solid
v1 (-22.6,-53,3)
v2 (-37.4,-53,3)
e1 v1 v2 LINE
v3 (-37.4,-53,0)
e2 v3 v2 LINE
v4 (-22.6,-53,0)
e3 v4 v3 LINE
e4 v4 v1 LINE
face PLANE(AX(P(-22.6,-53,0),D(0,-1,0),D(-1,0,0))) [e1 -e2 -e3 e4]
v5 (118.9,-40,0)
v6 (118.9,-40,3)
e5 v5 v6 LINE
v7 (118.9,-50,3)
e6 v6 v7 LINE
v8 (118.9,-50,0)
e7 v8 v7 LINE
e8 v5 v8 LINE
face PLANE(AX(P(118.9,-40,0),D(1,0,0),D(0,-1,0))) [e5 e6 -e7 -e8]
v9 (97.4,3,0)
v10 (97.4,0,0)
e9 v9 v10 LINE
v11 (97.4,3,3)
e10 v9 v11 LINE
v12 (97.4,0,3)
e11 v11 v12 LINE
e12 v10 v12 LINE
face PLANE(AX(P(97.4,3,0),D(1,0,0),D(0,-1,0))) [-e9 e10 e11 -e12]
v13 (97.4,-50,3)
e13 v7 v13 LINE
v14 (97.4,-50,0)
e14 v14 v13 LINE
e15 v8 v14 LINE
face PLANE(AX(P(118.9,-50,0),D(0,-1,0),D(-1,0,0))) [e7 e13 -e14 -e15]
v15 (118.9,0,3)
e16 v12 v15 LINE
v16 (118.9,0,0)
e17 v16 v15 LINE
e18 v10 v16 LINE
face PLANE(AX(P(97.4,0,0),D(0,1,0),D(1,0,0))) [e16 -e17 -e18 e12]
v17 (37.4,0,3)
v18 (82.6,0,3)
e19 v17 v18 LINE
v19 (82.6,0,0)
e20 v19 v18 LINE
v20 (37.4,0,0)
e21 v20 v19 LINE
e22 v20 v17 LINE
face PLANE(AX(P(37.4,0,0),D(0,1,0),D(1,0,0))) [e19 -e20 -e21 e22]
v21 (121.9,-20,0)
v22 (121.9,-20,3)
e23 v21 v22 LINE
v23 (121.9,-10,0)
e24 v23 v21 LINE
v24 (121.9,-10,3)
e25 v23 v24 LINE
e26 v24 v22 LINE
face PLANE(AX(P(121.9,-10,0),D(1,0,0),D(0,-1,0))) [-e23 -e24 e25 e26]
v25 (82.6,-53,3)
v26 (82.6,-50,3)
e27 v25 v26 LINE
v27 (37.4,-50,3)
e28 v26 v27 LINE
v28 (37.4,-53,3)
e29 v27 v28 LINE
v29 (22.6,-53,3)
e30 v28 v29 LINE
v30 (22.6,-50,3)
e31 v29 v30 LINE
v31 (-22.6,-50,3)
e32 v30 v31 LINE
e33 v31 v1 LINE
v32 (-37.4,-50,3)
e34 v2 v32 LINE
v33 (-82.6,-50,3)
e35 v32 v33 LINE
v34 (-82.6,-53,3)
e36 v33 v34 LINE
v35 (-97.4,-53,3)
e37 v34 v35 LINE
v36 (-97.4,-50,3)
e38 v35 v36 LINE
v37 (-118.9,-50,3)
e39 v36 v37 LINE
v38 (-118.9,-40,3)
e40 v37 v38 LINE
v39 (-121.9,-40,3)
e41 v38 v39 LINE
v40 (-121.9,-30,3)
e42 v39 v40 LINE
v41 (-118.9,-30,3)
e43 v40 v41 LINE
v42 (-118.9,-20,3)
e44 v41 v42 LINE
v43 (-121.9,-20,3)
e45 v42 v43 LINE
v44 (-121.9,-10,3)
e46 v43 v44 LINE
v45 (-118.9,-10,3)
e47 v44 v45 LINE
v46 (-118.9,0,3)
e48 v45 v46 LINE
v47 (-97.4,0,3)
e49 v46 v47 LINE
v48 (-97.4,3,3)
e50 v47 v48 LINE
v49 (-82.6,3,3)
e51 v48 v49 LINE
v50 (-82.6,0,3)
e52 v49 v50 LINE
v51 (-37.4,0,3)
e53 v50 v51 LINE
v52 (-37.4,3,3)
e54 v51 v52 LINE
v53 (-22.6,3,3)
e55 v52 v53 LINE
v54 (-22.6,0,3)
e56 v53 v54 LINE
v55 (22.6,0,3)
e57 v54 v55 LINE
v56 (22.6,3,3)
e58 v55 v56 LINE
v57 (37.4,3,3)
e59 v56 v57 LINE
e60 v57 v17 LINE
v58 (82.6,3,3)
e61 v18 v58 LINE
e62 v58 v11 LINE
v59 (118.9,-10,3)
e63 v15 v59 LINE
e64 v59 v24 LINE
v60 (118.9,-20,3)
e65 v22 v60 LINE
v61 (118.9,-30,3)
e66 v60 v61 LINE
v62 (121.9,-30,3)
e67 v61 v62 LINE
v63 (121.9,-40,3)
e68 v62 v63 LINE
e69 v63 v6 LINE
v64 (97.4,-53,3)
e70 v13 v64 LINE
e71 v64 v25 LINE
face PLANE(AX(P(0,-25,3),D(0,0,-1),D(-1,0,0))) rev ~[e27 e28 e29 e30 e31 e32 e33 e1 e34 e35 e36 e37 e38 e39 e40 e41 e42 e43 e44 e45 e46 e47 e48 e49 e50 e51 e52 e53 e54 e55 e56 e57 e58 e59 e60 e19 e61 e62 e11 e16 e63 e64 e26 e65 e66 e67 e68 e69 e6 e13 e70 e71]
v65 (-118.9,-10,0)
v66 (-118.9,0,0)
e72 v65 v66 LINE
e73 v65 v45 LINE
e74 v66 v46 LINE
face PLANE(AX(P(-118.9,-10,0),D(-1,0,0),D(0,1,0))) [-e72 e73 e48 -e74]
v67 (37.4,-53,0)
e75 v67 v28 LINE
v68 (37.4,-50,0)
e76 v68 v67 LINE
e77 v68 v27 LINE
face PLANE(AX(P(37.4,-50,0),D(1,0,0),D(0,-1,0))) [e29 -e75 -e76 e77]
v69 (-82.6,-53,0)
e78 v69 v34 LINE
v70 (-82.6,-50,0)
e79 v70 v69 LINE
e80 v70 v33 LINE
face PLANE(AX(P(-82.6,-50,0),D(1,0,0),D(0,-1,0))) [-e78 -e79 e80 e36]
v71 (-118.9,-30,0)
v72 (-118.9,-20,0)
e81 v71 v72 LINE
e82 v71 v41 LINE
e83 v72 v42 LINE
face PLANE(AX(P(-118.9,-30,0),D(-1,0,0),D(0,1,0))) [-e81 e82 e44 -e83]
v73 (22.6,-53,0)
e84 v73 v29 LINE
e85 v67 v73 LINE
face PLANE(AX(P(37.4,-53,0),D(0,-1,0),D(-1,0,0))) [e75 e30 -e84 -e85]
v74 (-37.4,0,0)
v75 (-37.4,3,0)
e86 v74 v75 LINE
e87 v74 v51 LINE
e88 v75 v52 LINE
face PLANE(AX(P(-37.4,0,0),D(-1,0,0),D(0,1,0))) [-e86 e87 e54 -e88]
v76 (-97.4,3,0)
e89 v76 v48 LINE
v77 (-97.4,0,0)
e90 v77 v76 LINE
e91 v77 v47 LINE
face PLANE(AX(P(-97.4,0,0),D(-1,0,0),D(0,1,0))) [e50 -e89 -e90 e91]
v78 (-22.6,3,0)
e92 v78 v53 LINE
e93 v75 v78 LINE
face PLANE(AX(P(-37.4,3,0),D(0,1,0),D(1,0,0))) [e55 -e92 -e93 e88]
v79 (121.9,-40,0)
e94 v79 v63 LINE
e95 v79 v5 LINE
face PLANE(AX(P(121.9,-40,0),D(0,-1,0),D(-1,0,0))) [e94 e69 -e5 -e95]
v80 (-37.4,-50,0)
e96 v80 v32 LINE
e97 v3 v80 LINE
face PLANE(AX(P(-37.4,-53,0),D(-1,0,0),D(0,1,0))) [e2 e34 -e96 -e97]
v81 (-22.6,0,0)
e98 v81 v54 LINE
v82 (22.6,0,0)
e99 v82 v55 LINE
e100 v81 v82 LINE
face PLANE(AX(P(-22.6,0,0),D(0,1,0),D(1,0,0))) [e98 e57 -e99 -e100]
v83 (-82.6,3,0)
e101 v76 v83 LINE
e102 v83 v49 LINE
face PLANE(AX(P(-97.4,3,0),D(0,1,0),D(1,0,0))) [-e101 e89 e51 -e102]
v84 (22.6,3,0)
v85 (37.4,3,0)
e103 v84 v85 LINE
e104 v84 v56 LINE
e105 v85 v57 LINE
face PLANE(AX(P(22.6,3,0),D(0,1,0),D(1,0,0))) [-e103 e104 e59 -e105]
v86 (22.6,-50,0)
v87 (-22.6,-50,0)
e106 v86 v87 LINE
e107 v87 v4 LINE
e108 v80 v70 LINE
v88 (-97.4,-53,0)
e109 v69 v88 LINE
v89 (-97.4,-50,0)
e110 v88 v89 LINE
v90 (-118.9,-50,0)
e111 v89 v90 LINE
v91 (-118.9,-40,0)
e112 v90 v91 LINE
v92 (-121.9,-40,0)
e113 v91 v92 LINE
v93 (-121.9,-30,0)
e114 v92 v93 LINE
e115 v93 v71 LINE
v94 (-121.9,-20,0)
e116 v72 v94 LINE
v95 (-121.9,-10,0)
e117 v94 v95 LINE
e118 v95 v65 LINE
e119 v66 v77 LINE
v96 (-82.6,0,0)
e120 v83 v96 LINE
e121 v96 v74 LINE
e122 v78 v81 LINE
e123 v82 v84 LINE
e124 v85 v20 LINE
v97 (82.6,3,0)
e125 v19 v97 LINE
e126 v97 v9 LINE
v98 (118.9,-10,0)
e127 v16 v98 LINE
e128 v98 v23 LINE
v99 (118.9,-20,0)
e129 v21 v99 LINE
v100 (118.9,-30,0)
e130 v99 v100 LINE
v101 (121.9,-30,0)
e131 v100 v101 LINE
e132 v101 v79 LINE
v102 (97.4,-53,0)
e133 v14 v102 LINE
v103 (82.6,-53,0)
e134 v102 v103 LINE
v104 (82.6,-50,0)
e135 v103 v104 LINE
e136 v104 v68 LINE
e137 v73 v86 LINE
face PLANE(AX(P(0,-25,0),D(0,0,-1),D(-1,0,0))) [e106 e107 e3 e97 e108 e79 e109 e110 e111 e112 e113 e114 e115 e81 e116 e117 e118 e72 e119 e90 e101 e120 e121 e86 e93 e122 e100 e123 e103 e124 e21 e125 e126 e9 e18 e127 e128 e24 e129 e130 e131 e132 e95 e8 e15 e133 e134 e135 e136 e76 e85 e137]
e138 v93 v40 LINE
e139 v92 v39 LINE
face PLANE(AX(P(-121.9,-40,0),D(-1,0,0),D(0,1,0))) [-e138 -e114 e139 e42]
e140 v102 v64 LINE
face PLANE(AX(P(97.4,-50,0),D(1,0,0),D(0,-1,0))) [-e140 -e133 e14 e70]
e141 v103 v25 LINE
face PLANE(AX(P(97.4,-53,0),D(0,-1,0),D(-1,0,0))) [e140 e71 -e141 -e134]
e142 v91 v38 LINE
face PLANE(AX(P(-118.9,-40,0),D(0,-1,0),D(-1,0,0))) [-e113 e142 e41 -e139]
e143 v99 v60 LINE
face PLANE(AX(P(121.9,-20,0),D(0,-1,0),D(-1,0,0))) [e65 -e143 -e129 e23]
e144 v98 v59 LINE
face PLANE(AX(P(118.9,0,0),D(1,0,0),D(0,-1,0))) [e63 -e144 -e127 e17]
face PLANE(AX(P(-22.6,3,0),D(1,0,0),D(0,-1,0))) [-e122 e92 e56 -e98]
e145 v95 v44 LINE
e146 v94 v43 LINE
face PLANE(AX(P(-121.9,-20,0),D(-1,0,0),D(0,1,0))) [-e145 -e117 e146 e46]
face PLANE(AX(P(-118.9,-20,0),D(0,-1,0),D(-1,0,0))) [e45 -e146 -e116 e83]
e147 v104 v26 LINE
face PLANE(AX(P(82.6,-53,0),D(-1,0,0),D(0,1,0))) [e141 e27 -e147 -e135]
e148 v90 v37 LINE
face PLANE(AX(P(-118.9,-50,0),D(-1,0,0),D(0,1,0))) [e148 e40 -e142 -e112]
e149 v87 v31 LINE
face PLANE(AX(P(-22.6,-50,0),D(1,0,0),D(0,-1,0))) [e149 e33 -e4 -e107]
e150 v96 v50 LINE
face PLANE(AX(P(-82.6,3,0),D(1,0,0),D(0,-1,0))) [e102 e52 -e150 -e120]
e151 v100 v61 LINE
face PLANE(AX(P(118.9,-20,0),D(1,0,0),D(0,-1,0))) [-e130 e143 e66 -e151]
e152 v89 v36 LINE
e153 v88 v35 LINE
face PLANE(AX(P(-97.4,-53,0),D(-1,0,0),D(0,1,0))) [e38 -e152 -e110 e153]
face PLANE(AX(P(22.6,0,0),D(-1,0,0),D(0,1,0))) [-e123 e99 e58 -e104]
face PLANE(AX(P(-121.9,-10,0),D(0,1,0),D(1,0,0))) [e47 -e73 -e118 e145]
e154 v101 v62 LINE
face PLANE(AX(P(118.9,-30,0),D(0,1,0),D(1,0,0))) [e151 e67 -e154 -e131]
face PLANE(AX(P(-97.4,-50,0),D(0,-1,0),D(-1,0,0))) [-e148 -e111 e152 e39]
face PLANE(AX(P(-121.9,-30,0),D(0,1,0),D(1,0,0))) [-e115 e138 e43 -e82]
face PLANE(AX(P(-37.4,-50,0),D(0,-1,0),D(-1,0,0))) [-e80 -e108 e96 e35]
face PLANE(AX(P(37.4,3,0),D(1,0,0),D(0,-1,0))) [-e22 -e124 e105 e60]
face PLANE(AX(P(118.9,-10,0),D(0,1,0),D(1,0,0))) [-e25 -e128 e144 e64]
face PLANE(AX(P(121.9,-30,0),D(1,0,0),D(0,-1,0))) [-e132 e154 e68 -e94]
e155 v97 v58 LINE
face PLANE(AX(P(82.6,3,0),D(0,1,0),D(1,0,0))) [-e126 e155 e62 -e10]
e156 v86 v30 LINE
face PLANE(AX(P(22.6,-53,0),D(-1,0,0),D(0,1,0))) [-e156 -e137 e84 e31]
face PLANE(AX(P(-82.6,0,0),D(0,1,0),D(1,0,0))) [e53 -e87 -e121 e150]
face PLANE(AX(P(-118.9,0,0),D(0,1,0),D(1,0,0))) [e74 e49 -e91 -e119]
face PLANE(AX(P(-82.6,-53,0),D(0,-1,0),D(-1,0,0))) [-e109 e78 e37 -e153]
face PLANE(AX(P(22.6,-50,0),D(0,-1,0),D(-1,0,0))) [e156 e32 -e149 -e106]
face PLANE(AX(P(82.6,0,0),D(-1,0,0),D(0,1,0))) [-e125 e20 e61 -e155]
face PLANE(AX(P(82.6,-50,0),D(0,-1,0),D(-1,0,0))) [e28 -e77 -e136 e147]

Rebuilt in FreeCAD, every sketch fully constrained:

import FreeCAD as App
import Part
import Sketcher

V = App.Vector

doc = App.newDocument("Part")
body = doc.addObject("PartDesign::Body", "Body")

sketch1 = doc.addObject("Sketcher::SketchObject", "Sketch")
body.addObject(sketch1)
sketch1.AttachmentSupport = (doc.XY_Plane, [""])
sketch1.MapMode = "FlatFace"
sketch1.addGeometry([
    Part.LineSegment(V(22.6, 0, 0), V(-22.6, 0, 0)),
    Part.LineSegment(V(-22.6, 0, 0), V(-22.6, 3, 0)),
    Part.LineSegment(V(-22.6, 3, 0), V(-37.4, 3, 0)),
    Part.LineSegment(V(-37.4, 3, 0), V(-37.4, 0, 0)),
    Part.LineSegment(V(-37.4, 0, 0), V(-82.6, 0, 0)),
    Part.LineSegment(V(-82.6, 0, 0), V(-82.6, 3, 0)),
    Part.LineSegment(V(-82.6, 3, 0), V(-97.4, 3, 0)),
    Part.LineSegment(V(-97.4, 3, 0), V(-97.4, 0, 0)),
    Part.LineSegment(V(-97.4, 0, 0), V(-118.9, 0, 0)),
    Part.LineSegment(V(-118.9, 0, 0), V(-118.9, -10, 0)),
    Part.LineSegment(V(-118.9, -10, 0), V(-121.9, -10, 0)),
    Part.LineSegment(V(-121.9, -10, 0), V(-121.9, -20, 0)),
    Part.LineSegment(V(-121.9, -20, 0), V(-118.9, -20, 0)),
    Part.LineSegment(V(-118.9, -20, 0), V(-118.9, -30, 0)),
    Part.LineSegment(V(-118.9, -30, 0), V(-121.9, -30, 0)),
    Part.LineSegment(V(-121.9, -30, 0), V(-121.9, -40, 0)),
    Part.LineSegment(V(-121.9, -40, 0), V(-118.9, -40, 0)),
    Part.LineSegment(V(-118.9, -40, 0), V(-118.9, -50, 0)),
    Part.LineSegment(V(-118.9, -50, 0), V(-97.4, -50, 0)),
    Part.LineSegment(V(-97.4, -50, 0), V(-97.4, -53, 0)),
    Part.LineSegment(V(-97.4, -53, 0), V(-82.6, -53, 0)),
    Part.LineSegment(V(-82.6, -53, 0), V(-82.6, -50, 0)),
    Part.LineSegment(V(-82.6, -50, 0), V(-37.4, -50, 0)),
    Part.LineSegment(V(-37.4, -50, 0), V(-37.4, -53, 0)),
    Part.LineSegment(V(-37.4, -53, 0), V(-22.6, -53, 0)),
    Part.LineSegment(V(-22.6, -53, 0), V(-22.6, -50, 0)),
    Part.LineSegment(V(-22.6, -50, 0), V(22.6, -50, 0)),
    Part.LineSegment(V(22.6, -50, 0), V(22.6, -53, 0)),
    Part.LineSegment(V(22.6, -53, 0), V(37.4, -53, 0)),
    Part.LineSegment(V(37.4, -53, 0), V(37.4, -50, 0)),
    Part.LineSegment(V(37.4, -50, 0), V(82.6, -50, 0)),
    Part.LineSegment(V(82.6, -50, 0), V(82.6, -53, 0)),
    Part.LineSegment(V(82.6, -53, 0), V(97.4, -53, 0)),
    Part.LineSegment(V(97.4, -53, 0), V(97.4, -50, 0)),
    Part.LineSegment(V(97.4, -50, 0), V(118.9, -50, 0)),
    Part.LineSegment(V(118.9, -50, 0), V(118.9, -40, 0)),
    Part.LineSegment(V(118.9, -40, 0), V(121.9, -40, 0)),
    Part.LineSegment(V(121.9, -40, 0), V(121.9, -30, 0)),
    Part.LineSegment(V(121.9, -30, 0), V(118.9, -30, 0)),
    Part.LineSegment(V(118.9, -30, 0), V(118.9, -20, 0)),
    Part.LineSegment(V(118.9, -20, 0), V(121.9, -20, 0)),
    Part.LineSegment(V(121.9, -20, 0), V(121.9, -10, 0)),
    Part.LineSegment(V(121.9, -10, 0), V(118.9, -10, 0)),
    Part.LineSegment(V(118.9, -10, 0), V(118.9, 0, 0)),
    Part.LineSegment(V(118.9, 0, 0), V(97.4, 0, 0)),
    Part.LineSegment(V(97.4, 0, 0), V(97.4, 3, 0)),
    Part.LineSegment(V(97.4, 3, 0), V(82.6, 3, 0)),
    Part.LineSegment(V(82.6, 3, 0), V(82.6, 0, 0)),
    Part.LineSegment(V(82.6, 0, 0), V(37.4, 0, 0)),
    Part.LineSegment(V(37.4, 0, 0), V(37.4, 3, 0)),
    Part.LineSegment(V(37.4, 3, 0), V(22.6, 3, 0)),
    Part.LineSegment(V(22.6, 3, 0), V(22.6, 0, 0)),
], False)
sketch1.addConstraint([
    Sketcher.Constraint("Coincident", 0, 2, 1, 1),
    Sketcher.Constraint("Coincident", 1, 2, 2, 1),
    Sketcher.Constraint("Coincident", 2, 2, 3, 1),
    Sketcher.Constraint("Coincident", 3, 2, 4, 1),
    Sketcher.Constraint("Coincident", 4, 2, 5, 1),
    Sketcher.Constraint("Coincident", 5, 2, 6, 1),
    Sketcher.Constraint("Coincident", 6, 2, 7, 1),
    Sketcher.Constraint("Coincident", 7, 2, 8, 1),
    Sketcher.Constraint("Coincident", 8, 2, 9, 1),
    Sketcher.Constraint("Coincident", 9, 2, 10, 1),
    Sketcher.Constraint("Coincident", 10, 2, 11, 1),
    Sketcher.Constraint("Coincident", 11, 2, 12, 1),
    Sketcher.Constraint("Coincident", 12, 2, 13, 1),
    Sketcher.Constraint("Coincident", 13, 2, 14, 1),
    Sketcher.Constraint("Coincident", 14, 2, 15, 1),
    Sketcher.Constraint("Coincident", 15, 2, 16, 1),
    Sketcher.Constraint("Coincident", 16, 2, 17, 1),
    Sketcher.Constraint("Coincident", 17, 2, 18, 1),
    Sketcher.Constraint("Coincident", 18, 2, 19, 1),
    Sketcher.Constraint("Coincident", 19, 2, 20, 1),
    Sketcher.Constraint("Coincident", 20, 2, 21, 1),
    Sketcher.Constraint("Coincident", 21, 2, 22, 1),
    Sketcher.Constraint("Coincident", 22, 2, 23, 1),
    Sketcher.Constraint("Coincident", 23, 2, 24, 1),
    Sketcher.Constraint("Coincident", 24, 2, 25, 1),
    Sketcher.Constraint("Coincident", 25, 2, 26, 1),
    Sketcher.Constraint("Coincident", 26, 2, 27, 1),
    Sketcher.Constraint("Coincident", 27, 2, 28, 1),
    Sketcher.Constraint("Coincident", 28, 2, 29, 1),
    Sketcher.Constraint("Coincident", 29, 2, 30, 1),
    Sketcher.Constraint("Coincident", 30, 2, 31, 1),
    Sketcher.Constraint("Coincident", 31, 2, 32, 1),
    Sketcher.Constraint("Coincident", 32, 2, 33, 1),
    Sketcher.Constraint("Coincident", 33, 2, 34, 1),
    Sketcher.Constraint("Coincident", 34, 2, 35, 1),
    Sketcher.Constraint("Coincident", 35, 2, 36, 1),
    Sketcher.Constraint("Coincident", 36, 2, 37, 1),
    Sketcher.Constraint("Coincident", 37, 2, 38, 1),
    Sketcher.Constraint("Coincident", 38, 2, 39, 1),
    Sketcher.Constraint("Coincident", 39, 2, 40, 1),
    Sketcher.Constraint("Coincident", 40, 2, 41, 1),
    Sketcher.Constraint("Coincident", 41, 2, 42, 1),
    Sketcher.Constraint("Coincident", 42, 2, 43, 1),
    Sketcher.Constraint("Coincident", 43, 2, 44, 1),
    Sketcher.Constraint("Coincident", 44, 2, 45, 1),
    Sketcher.Constraint("Coincident", 45, 2, 46, 1),
    Sketcher.Constraint("Coincident", 46, 2, 47, 1),
    Sketcher.Constraint("Coincident", 47, 2, 48, 1),
    Sketcher.Constraint("Coincident", 48, 2, 49, 1),
    Sketcher.Constraint("Coincident", 49, 2, 50, 1),
    Sketcher.Constraint("Coincident", 50, 2, 51, 1),
    Sketcher.Constraint("Coincident", 51, 2, 0, 1),
    Sketcher.Constraint("Horizontal", 0),
    Sketcher.Constraint("Vertical", 1),
    Sketcher.Constraint("Horizontal", 2),
    Sketcher.Constraint("Vertical", 3),
    Sketcher.Constraint("Horizontal", 4),
    Sketcher.Constraint("Vertical", 5),
    Sketcher.Constraint("Horizontal", 6),
    Sketcher.Constraint("Vertical", 7),
    Sketcher.Constraint("Horizontal", 8),
    Sketcher.Constraint("Vertical", 9),
    Sketcher.Constraint("Horizontal", 10),
    Sketcher.Constraint("Vertical", 11),
    Sketcher.Constraint("Horizontal", 12),
    Sketcher.Constraint("Vertical", 13),
    Sketcher.Constraint("Horizontal", 14),
    Sketcher.Constraint("Vertical", 15),
    Sketcher.Constraint("Horizontal", 16),
    Sketcher.Constraint("Vertical", 17),
    Sketcher.Constraint("Horizontal", 18),
    Sketcher.Constraint("Vertical", 19),
    Sketcher.Constraint("Horizontal", 20),
    Sketcher.Constraint("Vertical", 21),
    Sketcher.Constraint("Horizontal", 22),
    Sketcher.Constraint("Vertical", 23),
    Sketcher.Constraint("Horizontal", 24),
    Sketcher.Constraint("Vertical", 25),
    Sketcher.Constraint("Horizontal", 26),
    Sketcher.Constraint("Vertical", 27),
    Sketcher.Constraint("Horizontal", 28),
    Sketcher.Constraint("Vertical", 29),
    Sketcher.Constraint("Horizontal", 30),
    Sketcher.Constraint("Vertical", 31),
    Sketcher.Constraint("Horizontal", 32),
    Sketcher.Constraint("Vertical", 33),
    Sketcher.Constraint("Horizontal", 34),
    Sketcher.Constraint("Vertical", 35),
    Sketcher.Constraint("Horizontal", 36),
    Sketcher.Constraint("Vertical", 37),
    Sketcher.Constraint("Horizontal", 38),
    Sketcher.Constraint("Vertical", 39),
    Sketcher.Constraint("Horizontal", 40),
    Sketcher.Constraint("Vertical", 41),
    Sketcher.Constraint("Horizontal", 42),
    Sketcher.Constraint("Vertical", 43),
    Sketcher.Constraint("Horizontal", 44),
    Sketcher.Constraint("Vertical", 45),
    Sketcher.Constraint("Horizontal", 46),
    Sketcher.Constraint("Vertical", 47),
    Sketcher.Constraint("Horizontal", 48),
    Sketcher.Constraint("Vertical", 49),
    Sketcher.Constraint("Horizontal", 50),
    Sketcher.Constraint("Vertical", 51),
    Sketcher.Constraint("Symmetric", 8, 2, 43, 2, -1, 1),
    Sketcher.Constraint("Symmetric", 4, 2, 47, 2, -1, 1),
    Sketcher.Constraint("Symmetric", 0, 2, 51, 2, -1, 1),
    Sketcher.Constraint("Symmetric", 24, 2, 27, 2, -2),
    Sketcher.Constraint("Symmetric", 22, 2, 29, 2, -2),
    Sketcher.Constraint("Symmetric", 20, 2, 31, 2, -2),
    Sketcher.Constraint("Symmetric", 18, 2, 33, 2, -2),
    Sketcher.Constraint("Symmetric", 16, 2, 35, 2, -2),
    Sketcher.Constraint("Symmetric", 14, 2, 37, 2, -2),
    Sketcher.Constraint("Symmetric", 12, 2, 39, 2, -2),
    Sketcher.Constraint("Symmetric", 10, 2, 41, 2, -2),
    Sketcher.Constraint("Symmetric", 7, 2, 44, 2, -2),
    Sketcher.Constraint("Symmetric", 3, 2, 48, 2, -2),
    Sketcher.Constraint("Horizontal", 2, 2, 5, 2),
    Sketcher.Constraint("Horizontal", 18, 2, 21, 2),
    Sketcher.Constraint("Horizontal", 20, 2, 23, 2),
    Sketcher.Constraint("Horizontal", 22, 2, 25, 2),
    Sketcher.Constraint("Horizontal", 6, 2, 45, 2),
    Sketcher.Constraint("Horizontal", 46, 2, 49, 2),
    Sketcher.Constraint("Vertical", 9, 2, 12, 2),
    Sketcher.Constraint("Vertical", 11, 2, 14, 2),
    Sketcher.Constraint("Vertical", 13, 2, 16, 2),
    Sketcher.Constraint("Vertical", 7, 2, 18, 2),
    Sketcher.Constraint("Vertical", 5, 2, 20, 2),
    Sketcher.Constraint("Vertical", 3, 2, 22, 2),
    Sketcher.Constraint("Vertical", 1, 2, 24, 2),
    Sketcher.Constraint("Equal", 0, 4),
    Sketcher.Constraint("Equal", 2, 6),
    Sketcher.Constraint("Equal", 42, 1),
    Sketcher.Constraint("Equal", 9, 11),
    Sketcher.Constraint("Equal", 11, 13),
    Sketcher.Constraint("Equal", 13, 15),
    Sketcher.Constraint("Equal", 15, 17),
    Sketcher.Constraint("Equal", 7, 19),
    Sketcher.Constraint("DistanceX", 10, 2, 10, 1, 3.0),
    Sketcher.Constraint("DistanceY", 9, 2, 9, 1, 10.0),
    Sketcher.Constraint("DistanceX", 0, 2, 0, 1, 45.2),
    Sketcher.Constraint("DistanceX", 2, 2, 2, 1, 14.8),
    Sketcher.Constraint("DistanceX", 8, 2, 8, 1, 21.5),
])
pad1 = doc.addObject("PartDesign::Pad", "Pad")
body.addObject(pad1)
pad1.Profile = sketch1
pad1.Length = 3

doc.recompute()
